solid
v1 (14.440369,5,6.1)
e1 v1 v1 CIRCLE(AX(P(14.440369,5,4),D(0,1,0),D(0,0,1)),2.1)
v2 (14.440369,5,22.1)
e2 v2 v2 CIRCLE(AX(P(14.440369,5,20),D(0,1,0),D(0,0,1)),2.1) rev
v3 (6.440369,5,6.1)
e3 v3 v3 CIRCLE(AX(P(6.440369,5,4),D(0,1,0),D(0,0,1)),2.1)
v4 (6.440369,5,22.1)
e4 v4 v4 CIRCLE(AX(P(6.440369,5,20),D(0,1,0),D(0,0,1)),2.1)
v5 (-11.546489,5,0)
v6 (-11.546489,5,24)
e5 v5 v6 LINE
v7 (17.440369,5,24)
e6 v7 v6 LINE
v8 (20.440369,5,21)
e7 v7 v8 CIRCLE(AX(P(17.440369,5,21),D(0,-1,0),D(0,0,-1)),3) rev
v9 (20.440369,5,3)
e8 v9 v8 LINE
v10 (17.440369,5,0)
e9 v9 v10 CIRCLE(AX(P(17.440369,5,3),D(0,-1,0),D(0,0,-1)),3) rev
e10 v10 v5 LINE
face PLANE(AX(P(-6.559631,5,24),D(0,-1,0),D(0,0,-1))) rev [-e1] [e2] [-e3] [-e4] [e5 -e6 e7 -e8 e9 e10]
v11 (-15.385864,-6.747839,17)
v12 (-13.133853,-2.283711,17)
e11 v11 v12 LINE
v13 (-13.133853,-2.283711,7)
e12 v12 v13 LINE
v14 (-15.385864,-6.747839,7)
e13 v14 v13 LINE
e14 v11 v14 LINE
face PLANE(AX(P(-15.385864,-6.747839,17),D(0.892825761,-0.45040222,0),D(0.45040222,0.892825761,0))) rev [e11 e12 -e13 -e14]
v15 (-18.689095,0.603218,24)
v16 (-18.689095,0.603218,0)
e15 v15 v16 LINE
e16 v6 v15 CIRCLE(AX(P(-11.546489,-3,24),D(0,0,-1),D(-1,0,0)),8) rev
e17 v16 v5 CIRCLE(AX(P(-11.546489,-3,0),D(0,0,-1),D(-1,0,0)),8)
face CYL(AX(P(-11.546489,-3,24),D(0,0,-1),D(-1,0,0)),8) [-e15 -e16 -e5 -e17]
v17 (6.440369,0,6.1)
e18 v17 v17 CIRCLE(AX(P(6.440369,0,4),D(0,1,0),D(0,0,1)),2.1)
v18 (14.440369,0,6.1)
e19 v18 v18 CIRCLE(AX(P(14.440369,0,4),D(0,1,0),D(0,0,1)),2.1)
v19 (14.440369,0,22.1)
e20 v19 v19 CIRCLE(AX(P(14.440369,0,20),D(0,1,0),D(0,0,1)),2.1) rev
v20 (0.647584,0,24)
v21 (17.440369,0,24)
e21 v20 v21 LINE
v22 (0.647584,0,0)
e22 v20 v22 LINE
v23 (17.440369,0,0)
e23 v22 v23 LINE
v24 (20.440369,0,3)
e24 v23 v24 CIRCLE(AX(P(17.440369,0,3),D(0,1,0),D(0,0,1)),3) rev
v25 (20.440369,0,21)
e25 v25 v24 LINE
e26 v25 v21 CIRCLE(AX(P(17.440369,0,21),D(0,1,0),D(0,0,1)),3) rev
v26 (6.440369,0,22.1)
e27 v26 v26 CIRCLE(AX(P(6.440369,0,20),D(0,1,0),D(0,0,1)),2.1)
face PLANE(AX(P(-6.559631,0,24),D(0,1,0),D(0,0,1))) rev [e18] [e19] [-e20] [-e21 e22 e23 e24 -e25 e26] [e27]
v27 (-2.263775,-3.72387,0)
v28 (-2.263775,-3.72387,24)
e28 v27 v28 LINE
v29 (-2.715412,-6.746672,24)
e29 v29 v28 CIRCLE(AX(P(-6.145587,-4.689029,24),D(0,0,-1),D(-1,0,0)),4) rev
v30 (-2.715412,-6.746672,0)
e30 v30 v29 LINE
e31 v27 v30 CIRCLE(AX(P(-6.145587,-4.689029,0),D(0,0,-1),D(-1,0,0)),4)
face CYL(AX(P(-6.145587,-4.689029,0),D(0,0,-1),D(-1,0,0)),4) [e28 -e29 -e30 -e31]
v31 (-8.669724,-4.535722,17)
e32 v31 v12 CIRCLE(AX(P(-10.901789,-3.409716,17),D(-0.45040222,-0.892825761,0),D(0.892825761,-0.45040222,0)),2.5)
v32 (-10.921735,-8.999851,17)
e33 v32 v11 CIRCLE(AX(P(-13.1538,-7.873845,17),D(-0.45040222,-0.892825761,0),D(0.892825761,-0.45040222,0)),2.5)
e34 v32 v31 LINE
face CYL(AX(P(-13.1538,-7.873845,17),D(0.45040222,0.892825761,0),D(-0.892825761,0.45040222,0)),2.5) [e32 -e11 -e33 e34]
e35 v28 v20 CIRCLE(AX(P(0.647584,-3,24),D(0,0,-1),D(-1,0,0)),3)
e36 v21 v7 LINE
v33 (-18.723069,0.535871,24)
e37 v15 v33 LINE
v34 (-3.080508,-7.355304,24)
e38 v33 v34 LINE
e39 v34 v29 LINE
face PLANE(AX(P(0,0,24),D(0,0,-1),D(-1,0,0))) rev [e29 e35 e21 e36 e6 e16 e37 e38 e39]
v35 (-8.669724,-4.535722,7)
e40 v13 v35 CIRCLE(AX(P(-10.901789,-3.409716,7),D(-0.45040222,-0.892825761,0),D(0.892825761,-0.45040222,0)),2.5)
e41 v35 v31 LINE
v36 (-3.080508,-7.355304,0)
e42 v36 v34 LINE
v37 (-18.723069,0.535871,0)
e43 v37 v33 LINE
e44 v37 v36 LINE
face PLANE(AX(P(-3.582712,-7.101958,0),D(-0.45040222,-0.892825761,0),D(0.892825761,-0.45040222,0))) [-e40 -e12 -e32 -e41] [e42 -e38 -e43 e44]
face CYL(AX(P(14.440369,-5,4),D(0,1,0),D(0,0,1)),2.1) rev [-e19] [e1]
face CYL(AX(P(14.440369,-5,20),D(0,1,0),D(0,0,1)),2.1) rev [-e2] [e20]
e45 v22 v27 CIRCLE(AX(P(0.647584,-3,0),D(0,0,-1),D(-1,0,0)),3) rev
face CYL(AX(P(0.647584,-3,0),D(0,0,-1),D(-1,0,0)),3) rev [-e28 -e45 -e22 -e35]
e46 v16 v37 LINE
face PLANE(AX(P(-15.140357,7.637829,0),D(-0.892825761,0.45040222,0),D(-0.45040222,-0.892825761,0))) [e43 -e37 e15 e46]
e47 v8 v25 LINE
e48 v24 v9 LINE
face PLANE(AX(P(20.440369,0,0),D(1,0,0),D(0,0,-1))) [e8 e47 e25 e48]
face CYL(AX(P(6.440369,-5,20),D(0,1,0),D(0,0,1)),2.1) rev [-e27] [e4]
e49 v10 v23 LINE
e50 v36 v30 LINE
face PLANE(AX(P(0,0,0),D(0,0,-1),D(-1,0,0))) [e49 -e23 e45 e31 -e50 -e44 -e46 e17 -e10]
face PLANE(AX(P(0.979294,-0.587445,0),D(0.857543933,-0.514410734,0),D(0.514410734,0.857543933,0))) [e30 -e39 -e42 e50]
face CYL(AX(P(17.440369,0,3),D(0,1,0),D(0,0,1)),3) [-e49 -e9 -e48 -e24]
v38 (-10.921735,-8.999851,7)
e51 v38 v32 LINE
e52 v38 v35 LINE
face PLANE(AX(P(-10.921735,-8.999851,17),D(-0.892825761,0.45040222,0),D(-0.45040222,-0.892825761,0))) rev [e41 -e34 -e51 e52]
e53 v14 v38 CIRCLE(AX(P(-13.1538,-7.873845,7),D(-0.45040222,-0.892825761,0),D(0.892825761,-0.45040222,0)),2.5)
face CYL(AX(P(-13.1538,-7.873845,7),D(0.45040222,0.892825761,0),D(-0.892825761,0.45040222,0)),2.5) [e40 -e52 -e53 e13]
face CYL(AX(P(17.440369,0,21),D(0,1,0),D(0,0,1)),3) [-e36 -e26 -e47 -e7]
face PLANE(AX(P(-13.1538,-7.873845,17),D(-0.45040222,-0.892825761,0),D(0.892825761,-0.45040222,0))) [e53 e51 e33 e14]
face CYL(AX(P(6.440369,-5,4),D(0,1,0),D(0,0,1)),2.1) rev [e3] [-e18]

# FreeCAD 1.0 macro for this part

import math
import FreeCAD as App
import Part
import Sketcher
Q = App.Units.Quantity


def edges_at(feature, points):
    """Names of the edges that pass closest to the given points."""
    edges = feature.Shape.Edges
    near = lambda p: min(range(len(edges)), key=lambda i: edges[i].distToShape(Part.Vertex(*p))[0])
    return sorted({f"Edge{near(p) + 1}" for p in points})

doc = App.newDocument("Part")
body = doc.addObject("PartDesign::Body", "Body")

sketch1 = body.newObject("Sketcher::SketchObject", "Sketch")
sketch1.AttachmentSupport = (doc.getObject("XY_Plane"), [""])
sketch1.MapMode = "FlatFace"
sketch1.addGeometry([
    Part.LineSegment(App.Vector(-7, 5, 0), App.Vector(-7, 0, 0)),
    Part.LineSegment(App.Vector(-7, 0, 0), App.Vector(10, 0, 0)),
    Part.LineSegment(App.Vector(10, 0, 0), App.Vector(10, 5, 0)),
    Part.LineSegment(App.Vector(10, 5, 0), App.Vector(-7, 5, 0)),
], False)
sketch1.addConstraint([
    Sketcher.Constraint("Coincident", 0, 2, 1, 1),
    Sketcher.Constraint("Coincident", 1, 2, 2, 1),
    Sketcher.Constraint("Coincident", 2, 2, 3, 1),
    Sketcher.Constraint("Coincident", 3, 2, 0, 1),
    Sketcher.Constraint("Vertical", 0),
    Sketcher.Constraint("Horizontal", 1),
    Sketcher.Constraint("Vertical", 2),
    Sketcher.Constraint("Horizontal", 3),
    Sketcher.Constraint("PointOnObject", 0, 2, -1),
    Sketcher.Constraint("DistanceX", 1, 1, 1, 2, Q("17 mm")),
    Sketcher.Constraint("DistanceY", 0, 2, 0, 1, Q("5 mm")),
    Sketcher.Constraint("DistanceX", 0, 2, -1, 1, Q("6.559631 mm")),
])
pad1 = body.newObject("PartDesign::Pad", "Pad")
pad1.Profile = sketch1
pad1.Length = 24

sketch2 = body.newObject("Sketcher::SketchObject", "Sketch001")
sketch2.AttachmentSupport = (doc.getObject("XY_Plane"), [""])
sketch2.MapMode = "FlatFace"
sketch2.AttachmentOffset = App.Placement(App.Vector(0, 0, 24), App.Rotation())
sketch2.addGeometry([
    Part.LineSegment(App.Vector(-18.723069, 0.535871, 0), App.Vector(-3.080508, -7.355304, 0)),
    Part.LineSegment(App.Vector(-3.080508, -7.355304, 0), App.Vector(-0.501567, -3.056101, 0)),
    Part.LineSegment(App.Vector(-0.501567, -3.056101, 0), App.Vector(-6.559631, 0, 0)),
    Part.LineSegment(App.Vector(-6.559631, 0, 0), App.Vector(-6.559631, 5, 0)),
    Part.LineSegment(App.Vector(-6.559631, 5, 0), App.Vector(-16.471058, 5, 0)),
    Part.LineSegment(App.Vector(-16.471058, 5, 0), App.Vector(-18.723069, 0.535871, 0)),
], False)
sketch2.addConstraint([
    Sketcher.Constraint("Coincident", 0, 2, 1, 1),
    Sketcher.Constraint("Coincident", 1, 2, 2, 1),
    Sketcher.Constraint("Coincident", 2, 2, 3, 1),
    Sketcher.Constraint("Coincident", 3, 2, 4, 1),
    Sketcher.Constraint("Coincident", 4, 2, 5, 1),
    Sketcher.Constraint("Coincident", 5, 2, 0, 1),
    Sketcher.Constraint("Vertical", 3),
    Sketcher.Constraint("Horizontal", 4),
    Sketcher.Constraint("PointOnObject", 2, 2, -1),
    Sketcher.Constraint("Parallel", 0, 2),
    Sketcher.Constraint("Perpendicular", 2, 5),
    Sketcher.Constraint("DistanceY", 3, 1, 3, 2, Q("5 mm")),
    Sketcher.Constraint("Distance", 5, Q("5 mm")),
    Sketcher.Constraint("DistanceY", 1, 2, -1, 1, Q("3.056101 mm")),
    Sketcher.Constraint("Distance", 1, Q("5.013391 mm")),
    Sketcher.Constraint("Distance", 2, Q("6.785271 mm")),
    Sketcher.Constraint("DistanceX", 4, 2, 4, 1, Q("9.911427 mm")),
    Sketcher.Constraint("DistanceX", 0, 2, -1, 1, Q("3.080508 mm")),
])
pad2 = body.newObject("PartDesign::Pad", "Pad001")
pad2.Profile = sketch2
pad2.Length = 24
pad2.Reversed = True
doc.recompute()

fillet = body.newObject("PartDesign::Fillet", "Fillet")
fillet.Base = (pad2, edges_at(pad2, [(-0.502, -3.056, 12)]))
fillet.Radius = 4
doc.recompute()

fillet2 = body.newObject("PartDesign::Fillet", "Fillet001")
fillet2.Base = (fillet, edges_at(fillet, [(-16.471, 5, 12)]))
fillet2.Radius = 8
doc.recompute()

fillet3 = body.newObject("PartDesign::Fillet", "Fillet002")
fillet3.Base = (fillet2, edges_at(fillet2, [(-6.56, 0, 12)]))
fillet3.Radius = 3

sketch3 = body.newObject("Sketcher::SketchObject", "Sketch002")
sketch3.AttachmentSupport = (doc.getObject("YZ_Plane"), [""])
sketch3.MapMode = "FlatFace"
sketch3.AttachmentOffset = App.Placement(App.Vector(0, 0, 10.440369), App.Rotation())
sketch3.addGeometry([
    Part.LineSegment(App.Vector(5, 24, 0), App.Vector(0, 24, 0)),
    Part.LineSegment(App.Vector(0, 24, 0), App.Vector(0, 0, 0)),
    Part.LineSegment(App.Vector(0, 0, 0), App.Vector(5, 0, 0)),
    Part.LineSegment(App.Vector(5, 0, 0), App.Vector(5, 24, 0)),
], False)
sketch3.addConstraint([
    Sketcher.Constraint("Coincident", 0, 2, 1, 1),
    Sketcher.Constraint("Coincident", 1, 2, 2, 1),
    Sketcher.Constraint("Coincident", 2, 2, 3, 1),
    Sketcher.Constraint("Coincident", 3, 2, 0, 1),
    Sketcher.Constraint("Horizontal", 0),
    Sketcher.Constraint("Vertical", 1),
    Sketcher.Constraint("Horizontal", 2),
    Sketcher.Constraint("Vertical", 3),
    Sketcher.Constraint("Coincident", 1, 2, -1, 1),
    Sketcher.Constraint("DistanceX", 0, 2, 0, 1, Q("5 mm")),
    Sketcher.Constraint("DistanceY", 1, 2, 1, 1, Q("24 mm")),
])
pad3 = body.newObject("PartDesign::Pad", "Pad002")
pad3.Profile = sketch3
pad3.Length = 10

sketch4 = body.newObject("Sketcher::SketchObject", "Sketch003")
sketch4.AttachmentSupport = (doc.getObject("XZ_Plane"), [""])
sketch4.MapMode = "FlatFace"
sketch4.AttachmentOffset = App.Placement(App.Vector(0, 0, -5), App.Rotation())
sketch4.addGeometry([
    Part.Circle(App.Vector(6.4, 20, 0), App.Vector(0, 0, 1), 2.1),
    Part.Circle(App.Vector(14.4, 20, 0), App.Vector(0, 0, 1), 2.1),
    Part.Circle(App.Vector(14.4, 4, 0), App.Vector(0, 0, 1), 2.1),
    Part.Circle(App.Vector(6.4, 4, 0), App.Vector(0, 0, 1), 2.1),
], False)
sketch4.addConstraint([
    Sketcher.Constraint("Equal", 0, 1),
    Sketcher.Constraint("Equal", 1, 2),
    Sketcher.Constraint("Equal", 2, 3),
    Sketcher.Constraint("Horizontal", 0, 3, 1, 3),
    Sketcher.Constraint("Horizontal", 2, 3, 3, 3),
    Sketcher.Constraint("Vertical", 1, 3, 2, 3),
    Sketcher.Constraint("Vertical", 0, 3, 3, 3),
    Sketcher.Constraint("Diameter", 0, Q("4.2 mm")),
    Sketcher.Constraint("DistanceY", -1, 1, 0, 3, Q("20 mm")),
    Sketcher.Constraint("DistanceY", -1, 1, 2, 3, Q("4 mm")),
    Sketcher.Constraint("DistanceX", 0, 3, 1, 3, Q("8 mm")),
    Sketcher.Constraint("DistanceX", -1, 1, 0, 3, Q("6.440369 mm")),
])
pocket1 = body.newObject("PartDesign::Pocket", "Pocket")
pocket1.Profile = sketch4
pocket1.Length = 10
pocket1.Reversed = True
doc.recompute()

fillet4 = body.newObject("PartDesign::Fillet", "Fillet003")
fillet4.Base = (pocket1, edges_at(pocket1, [(20.44, 2.5, 0), (20.44, 2.5, 24)]))
fillet4.Radius = 3

sketch5 = body.newObject("Sketcher::SketchObject", "Sketch004")
sketch5.Placement = App.Placement(App.Vector(-3.582712, -7.101958, 0), App.Rotation(App.Vector(0.892825761, -0.45040222, 0), App.Vector(0, 0, 0.999999999), App.Vector(-0.45040222, -0.892825761, 0), "ZXY"))
sketch5.addGeometry([
    Part.LineSegment(App.Vector(-5.7, 7, 0), App.Vector(-5.7, 17, 0)),
    Part.ArcOfCircle(Part.Circle(App.Vector(-8.2, 17, 0), App.Vector(0, 0, 1), 2.5), math.radians(0), math.radians(180)),
    Part.LineSegment(App.Vector(-10.7, 17, 0), App.Vector(-10.7, 7, 0)),
    Part.ArcOfCircle(Part.Circle(App.Vector(-8.2, 7, 0), App.Vector(0, 0, 1), 2.5), math.radians(180), math.radians(360)),
], False)
sketch5.addConstraint([
    Sketcher.Constraint("Tangent", 0, 2, 1, 1),
    Sketcher.Constraint("Tangent", 1, 2, 2, 1),
    Sketcher.Constraint("Tangent", 2, 2, 3, 1),
    Sketcher.Constraint("Tangent", 3, 2, 0, 1),
    Sketcher.Constraint("Vertical", 0),
    Sketcher.Constraint("Vertical", 2),
    Sketcher.Constraint("Radius", 1, Q("2.5 mm")),
    Sketcher.Constraint("DistanceY", 0, 1, 0, 2, Q("10 mm")),
    Sketcher.Constraint("DistanceY", -1, 1, 1, 3, Q("17 mm")),
    Sketcher.Constraint("DistanceX", 1, 3, -1, 1, Q("8.197654 mm")),
])
pad4 = body.newObject("PartDesign::Pad", "Pad003")
pad4.Profile = sketch5
pad4.Length = 5

doc.recompute()
